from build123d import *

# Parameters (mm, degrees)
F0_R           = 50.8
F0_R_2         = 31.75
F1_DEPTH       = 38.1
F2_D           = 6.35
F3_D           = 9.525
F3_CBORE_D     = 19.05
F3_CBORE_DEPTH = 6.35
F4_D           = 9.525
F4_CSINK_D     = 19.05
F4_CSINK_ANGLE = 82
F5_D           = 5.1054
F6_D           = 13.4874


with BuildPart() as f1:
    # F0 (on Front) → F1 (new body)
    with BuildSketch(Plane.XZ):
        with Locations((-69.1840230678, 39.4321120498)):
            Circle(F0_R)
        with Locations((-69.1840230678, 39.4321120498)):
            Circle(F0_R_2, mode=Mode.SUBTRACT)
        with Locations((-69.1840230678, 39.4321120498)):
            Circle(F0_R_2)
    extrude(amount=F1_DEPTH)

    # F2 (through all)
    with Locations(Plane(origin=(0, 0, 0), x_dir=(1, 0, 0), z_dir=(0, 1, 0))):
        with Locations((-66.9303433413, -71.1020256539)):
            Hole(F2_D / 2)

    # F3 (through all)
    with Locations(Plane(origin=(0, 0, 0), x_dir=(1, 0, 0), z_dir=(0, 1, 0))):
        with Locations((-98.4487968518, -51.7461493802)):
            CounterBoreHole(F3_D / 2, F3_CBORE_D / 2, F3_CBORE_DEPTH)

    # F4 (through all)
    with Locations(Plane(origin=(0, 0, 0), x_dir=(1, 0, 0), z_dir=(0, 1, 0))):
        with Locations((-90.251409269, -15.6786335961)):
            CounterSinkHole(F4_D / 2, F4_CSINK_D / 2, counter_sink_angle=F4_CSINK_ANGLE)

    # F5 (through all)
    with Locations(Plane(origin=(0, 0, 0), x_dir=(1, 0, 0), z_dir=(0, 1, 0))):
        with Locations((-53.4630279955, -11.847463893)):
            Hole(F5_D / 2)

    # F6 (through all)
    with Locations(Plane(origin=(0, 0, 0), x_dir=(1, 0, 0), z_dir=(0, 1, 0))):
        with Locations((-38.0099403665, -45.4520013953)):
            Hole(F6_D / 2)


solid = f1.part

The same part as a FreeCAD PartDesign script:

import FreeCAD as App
import Part
import Sketcher
from FreeCAD import Vector
Q = App.Units.Quantity

doc = App.newDocument("Part")
body = doc.addObject("PartDesign::Body", "Body")

sketch1 = body.newObject("Sketcher::SketchObject", "Sketch")
sketch1.AttachmentSupport = (doc.getObject("XZ_Plane"), [""])
sketch1.MapMode = "FlatFace"
sketch1.addGeometry(Part.Circle(Vector(-69, 39, 0), Vector(0, 0, 1), 51), False)
sketch1.addConstraint([
    Sketcher.Constraint("Diameter", 0, Q("4 in")),
    Sketcher.Constraint("DistanceX", 0, 3, -1, 1, 69.184023),
    Sketcher.Constraint("DistanceY", -1, 1, 0, 3, 39.432112),
])
pad1 = body.newObject("PartDesign::Pad", "Pad")
pad1.Profile = sketch1
pad1.Length = Q("1.5 in")

sketch2 = body.newObject("Sketcher::SketchObject", "Sketch001")
sketch2.AttachmentSupport = (doc.getObject("XZ_Plane"), [""])
sketch2.MapMode = "FlatFace"
sketch2.addGeometry(Part.Circle(Vector(-66.9, 71.1, 0), Vector(0, 0, 1), 3.2), False)
sketch2.addConstraint([
    Sketcher.Constraint("Diameter", 0, Q("0.25 in")),
    Sketcher.Constraint("DistanceX", 0, 3, -1, 1, 66.930343),
    Sketcher.Constraint("DistanceY", -1, 1, 0, 3, 71.102026),
])
doc.recompute()
hole = body.newObject("PartDesign::Hole", "Hole")
hole.Profile = sketch2
hole.ThreadType = "None"
hole.Diameter = Q("0.25 in")
hole.DepthType = "ThroughAll"
hole.Reversed = True

sketch3 = body.newObject("Sketcher::SketchObject", "Sketch002")
sketch3.AttachmentSupport = (doc.getObject("XZ_Plane"), [""])
sketch3.MapMode = "FlatFace"
sketch3.addGeometry(Part.Circle(Vector(-98.4, 51.7, 0), Vector(0, 0, 1), 4.8), False)
sketch3.addConstraint([
    Sketcher.Constraint("Diameter", 0, Q("0.375 in")),
    Sketcher.Constraint("DistanceY", -1, 1, 0, 3, 51.746149),
    Sketcher.Constraint("DistanceX", 0, 3, -1, 1, 98.448797),
])
doc.recompute()
hole2 = body.newObject("PartDesign::Hole", "Hole001")
hole2.Profile = sketch3
hole2.ThreadType = "None"
hole2.Diameter = Q("0.375 in")
hole2.DepthType = "ThroughAll"
hole2.HoleCutType = "Counterbore"
hole2.HoleCutDiameter = Q("0.75 in")
hole2.HoleCutDepth = Q("0.25 in")
hole2.Reversed = True

sketch4 = body.newObject("Sketcher::SketchObject", "Sketch003")
sketch4.AttachmentSupport = (doc.getObject("XZ_Plane"), [""])
sketch4.MapMode = "FlatFace"
sketch4.addGeometry(Part.Circle(Vector(-90.3, 15.7, 0), Vector(0, 0, 1), 4.8), False)
sketch4.addConstraint([
    Sketcher.Constraint("Diameter", 0, Q("0.375 in")),
    Sketcher.Constraint("DistanceX", 0, 3, -1, 1, 90.251409),
    Sketcher.Constraint("DistanceY", -1, 1, 0, 3, 15.678634),
])
doc.recompute()
hole3 = body.newObject("PartDesign::Hole", "Hole002")
hole3.Profile = sketch4
hole3.ThreadType = "None"
hole3.Diameter = Q("0.375 in")
hole3.DepthType = "ThroughAll"
hole3.HoleCutType = "Countersink"
hole3.HoleCutDiameter = Q("0.75 in")
hole3.HoleCutCountersinkAngle = 82
hole3.Reversed = True

sketch5 = body.newObject("Sketcher::SketchObject", "Sketch004")
sketch5.AttachmentSupport = (doc.getObject("XZ_Plane"), [""])
sketch5.MapMode = "FlatFace"
sketch5.addGeometry(Part.Circle(Vector(-53.5, 11.8, 0), Vector(0, 0, 1), 2.6), False)
sketch5.addConstraint([
    Sketcher.Constraint("Diameter", 0, Q("0.201 in")),
    Sketcher.Constraint("DistanceX", 0, 3, -1, 1, 53.463028),
    Sketcher.Constraint("DistanceY", -1, 1, 0, 3, 11.847464),
])
doc.recompute()
hole4 = body.newObject("PartDesign::Hole", "Hole003")
hole4.Profile = sketch5
hole4.ThreadType = "None"
hole4.Diameter = Q("0.201 in")
hole4.DepthType = "ThroughAll"
hole4.Reversed = True

sketch6 = body.newObject("Sketcher::SketchObject", "Sketch005")
sketch6.AttachmentSupport = (doc.getObject("XZ_Plane"), [""])
sketch6.MapMode = "FlatFace"
sketch6.addGeometry(Part.Circle(Vector(-38, 45, 0), Vector(0, 0, 1), 7), False)
sketch6.addConstraint([
    Sketcher.Constraint("Diameter", 0, Q("0.531 in")),
    Sketcher.Constraint("DistanceY", -1, 1, 0, 3, 45.452001),
    Sketcher.Constraint("DistanceX", 0, 3, -1, 1, 38.00994),
])
doc.recompute()
hole5 = body.newObject("PartDesign::Hole", "Hole004")
hole5.Profile = sketch6
hole5.ThreadType = "None"
hole5.Diameter = Q("0.531 in")
hole5.DepthType = "ThroughAll"
hole5.Reversed = True

doc.recompute()
